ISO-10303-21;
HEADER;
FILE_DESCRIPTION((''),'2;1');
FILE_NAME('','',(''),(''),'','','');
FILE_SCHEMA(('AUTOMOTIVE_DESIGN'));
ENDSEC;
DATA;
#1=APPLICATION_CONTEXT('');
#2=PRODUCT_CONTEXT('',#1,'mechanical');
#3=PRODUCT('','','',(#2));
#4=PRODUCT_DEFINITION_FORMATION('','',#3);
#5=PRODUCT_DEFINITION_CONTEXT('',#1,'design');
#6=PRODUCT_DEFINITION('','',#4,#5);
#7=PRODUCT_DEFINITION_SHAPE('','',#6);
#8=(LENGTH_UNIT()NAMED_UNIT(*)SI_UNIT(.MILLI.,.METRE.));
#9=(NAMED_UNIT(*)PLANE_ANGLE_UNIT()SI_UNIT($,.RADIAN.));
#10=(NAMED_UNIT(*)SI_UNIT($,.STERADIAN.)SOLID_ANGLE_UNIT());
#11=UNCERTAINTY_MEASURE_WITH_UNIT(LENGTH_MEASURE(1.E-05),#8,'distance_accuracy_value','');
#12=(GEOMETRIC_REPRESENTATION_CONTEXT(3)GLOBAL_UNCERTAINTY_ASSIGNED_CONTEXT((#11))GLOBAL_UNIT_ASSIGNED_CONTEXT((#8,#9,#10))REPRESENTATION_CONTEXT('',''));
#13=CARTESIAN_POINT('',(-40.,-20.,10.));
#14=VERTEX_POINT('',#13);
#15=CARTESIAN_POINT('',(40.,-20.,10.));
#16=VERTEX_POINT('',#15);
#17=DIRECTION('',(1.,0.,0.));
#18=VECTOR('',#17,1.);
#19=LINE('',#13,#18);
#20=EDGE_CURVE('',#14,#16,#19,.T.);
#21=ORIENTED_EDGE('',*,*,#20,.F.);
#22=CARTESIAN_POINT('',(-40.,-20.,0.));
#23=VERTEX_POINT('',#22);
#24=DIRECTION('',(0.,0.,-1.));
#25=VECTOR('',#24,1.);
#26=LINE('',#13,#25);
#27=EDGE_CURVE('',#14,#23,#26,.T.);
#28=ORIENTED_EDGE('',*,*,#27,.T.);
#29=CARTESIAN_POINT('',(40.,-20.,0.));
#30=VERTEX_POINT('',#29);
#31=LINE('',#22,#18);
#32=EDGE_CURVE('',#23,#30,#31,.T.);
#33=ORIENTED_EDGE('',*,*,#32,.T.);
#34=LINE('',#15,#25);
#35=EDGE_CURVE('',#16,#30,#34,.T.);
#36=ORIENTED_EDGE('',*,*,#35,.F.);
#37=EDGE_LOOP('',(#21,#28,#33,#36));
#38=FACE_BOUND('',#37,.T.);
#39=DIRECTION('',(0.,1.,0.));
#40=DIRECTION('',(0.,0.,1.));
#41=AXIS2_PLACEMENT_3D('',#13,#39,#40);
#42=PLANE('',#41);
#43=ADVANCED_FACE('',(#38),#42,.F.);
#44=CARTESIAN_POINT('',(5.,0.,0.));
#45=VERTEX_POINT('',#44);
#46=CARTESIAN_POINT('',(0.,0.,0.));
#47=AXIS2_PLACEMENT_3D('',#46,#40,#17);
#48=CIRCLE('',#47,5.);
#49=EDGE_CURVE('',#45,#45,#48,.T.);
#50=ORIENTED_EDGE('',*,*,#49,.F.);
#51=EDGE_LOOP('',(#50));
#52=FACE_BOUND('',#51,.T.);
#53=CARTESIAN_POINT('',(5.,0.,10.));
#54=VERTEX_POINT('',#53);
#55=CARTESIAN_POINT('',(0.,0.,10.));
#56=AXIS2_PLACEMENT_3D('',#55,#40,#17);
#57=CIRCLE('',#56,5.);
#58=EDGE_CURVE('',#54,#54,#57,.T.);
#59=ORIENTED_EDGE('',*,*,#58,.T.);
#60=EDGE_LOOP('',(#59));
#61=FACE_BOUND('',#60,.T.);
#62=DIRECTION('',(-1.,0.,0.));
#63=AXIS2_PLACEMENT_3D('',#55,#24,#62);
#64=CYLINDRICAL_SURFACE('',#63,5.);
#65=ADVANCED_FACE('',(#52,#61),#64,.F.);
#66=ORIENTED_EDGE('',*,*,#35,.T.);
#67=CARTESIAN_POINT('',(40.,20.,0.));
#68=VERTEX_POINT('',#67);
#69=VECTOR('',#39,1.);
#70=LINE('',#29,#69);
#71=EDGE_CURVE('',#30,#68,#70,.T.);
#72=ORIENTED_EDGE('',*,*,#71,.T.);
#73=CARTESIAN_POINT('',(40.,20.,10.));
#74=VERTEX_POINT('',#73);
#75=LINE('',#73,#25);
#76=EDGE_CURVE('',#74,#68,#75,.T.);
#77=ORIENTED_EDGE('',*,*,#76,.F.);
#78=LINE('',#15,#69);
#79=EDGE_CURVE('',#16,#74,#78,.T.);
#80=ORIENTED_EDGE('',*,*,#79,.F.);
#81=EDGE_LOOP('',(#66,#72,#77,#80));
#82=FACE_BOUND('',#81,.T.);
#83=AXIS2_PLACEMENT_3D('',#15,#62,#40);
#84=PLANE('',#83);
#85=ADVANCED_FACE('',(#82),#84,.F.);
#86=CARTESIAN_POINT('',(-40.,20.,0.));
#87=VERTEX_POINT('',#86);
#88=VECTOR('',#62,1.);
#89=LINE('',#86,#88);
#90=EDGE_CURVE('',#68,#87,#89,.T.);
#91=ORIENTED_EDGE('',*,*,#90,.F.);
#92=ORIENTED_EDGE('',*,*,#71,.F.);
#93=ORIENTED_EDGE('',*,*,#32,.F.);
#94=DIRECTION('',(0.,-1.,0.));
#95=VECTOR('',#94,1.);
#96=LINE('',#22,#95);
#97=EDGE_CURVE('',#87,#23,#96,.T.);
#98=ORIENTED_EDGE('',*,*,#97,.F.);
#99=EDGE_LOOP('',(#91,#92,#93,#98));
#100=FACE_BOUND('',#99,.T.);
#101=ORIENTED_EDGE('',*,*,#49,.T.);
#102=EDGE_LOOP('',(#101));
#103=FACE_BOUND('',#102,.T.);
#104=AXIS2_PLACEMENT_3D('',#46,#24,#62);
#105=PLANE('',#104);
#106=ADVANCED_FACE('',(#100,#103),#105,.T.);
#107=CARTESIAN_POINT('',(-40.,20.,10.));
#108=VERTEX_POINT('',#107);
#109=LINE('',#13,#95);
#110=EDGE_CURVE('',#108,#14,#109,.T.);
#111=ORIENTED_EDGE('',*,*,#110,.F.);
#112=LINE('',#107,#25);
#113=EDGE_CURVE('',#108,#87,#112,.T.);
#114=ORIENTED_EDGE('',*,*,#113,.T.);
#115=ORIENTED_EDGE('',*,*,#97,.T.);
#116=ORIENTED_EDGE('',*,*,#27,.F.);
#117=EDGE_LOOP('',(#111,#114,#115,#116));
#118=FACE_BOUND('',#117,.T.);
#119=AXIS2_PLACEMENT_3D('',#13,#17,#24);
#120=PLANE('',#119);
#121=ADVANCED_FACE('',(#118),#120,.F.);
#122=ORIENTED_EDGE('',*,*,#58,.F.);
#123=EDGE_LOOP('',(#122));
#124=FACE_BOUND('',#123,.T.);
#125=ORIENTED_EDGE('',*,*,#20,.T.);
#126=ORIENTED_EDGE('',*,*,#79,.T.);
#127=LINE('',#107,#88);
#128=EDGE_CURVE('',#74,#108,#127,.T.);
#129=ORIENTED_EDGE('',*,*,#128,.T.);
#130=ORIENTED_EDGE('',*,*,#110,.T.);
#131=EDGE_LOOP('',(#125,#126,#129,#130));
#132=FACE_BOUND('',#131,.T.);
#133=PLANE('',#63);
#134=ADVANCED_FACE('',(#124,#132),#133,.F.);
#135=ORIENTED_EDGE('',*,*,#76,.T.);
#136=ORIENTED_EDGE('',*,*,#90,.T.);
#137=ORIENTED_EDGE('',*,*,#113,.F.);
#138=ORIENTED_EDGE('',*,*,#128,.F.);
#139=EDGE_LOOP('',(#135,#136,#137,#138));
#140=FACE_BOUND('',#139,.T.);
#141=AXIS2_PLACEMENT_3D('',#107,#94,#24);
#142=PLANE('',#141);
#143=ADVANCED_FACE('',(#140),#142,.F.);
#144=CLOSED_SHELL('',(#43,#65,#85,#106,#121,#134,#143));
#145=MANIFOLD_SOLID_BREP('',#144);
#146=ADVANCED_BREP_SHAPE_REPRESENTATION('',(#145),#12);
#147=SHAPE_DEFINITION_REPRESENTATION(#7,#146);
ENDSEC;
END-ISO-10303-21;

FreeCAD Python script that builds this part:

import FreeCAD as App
import Part
import Sketcher


def add_polygon(sketch, points):
    """Adds a closed chain of lines whose ends are joined by coincident constraints."""
    first, n = sketch.GeometryCount, len(points)
    for a, b in zip(points, points[1:] + points[:1]):
        sketch.addGeometry(Part.LineSegment(App.Vector(*a, 0), App.Vector(*b, 0)), False)
    for i in range(n):
        sketch.addConstraint(Sketcher.Constraint("Coincident", first + i, 2, first + (i + 1) % n, 1))

doc = App.newDocument("Part")
body = doc.addObject("PartDesign::Body", "Body")

sketch1 = body.newObject("Sketcher::SketchObject", "Sketch")
sketch1.AttachmentSupport = (doc.getObject("XY_Plane"), [""])
sketch1.MapMode = "FlatFace"
add_polygon(sketch1, [(-40, 20), (-40, -20), (40, -20), (40, 20)])
sketch1.addGeometry(Part.Circle(App.Vector(0, 0, 0), App.Vector(0, 0, 1), 5), False)
sketch1.addConstraint([
    Sketcher.Constraint("Vertical", 0),
    Sketcher.Constraint("Horizontal", 1),
    Sketcher.Constraint("Vertical", 2),
    Sketcher.Constraint("Horizontal", 3),
    Sketcher.Constraint("Coincident", 4, 3, -1, 1),
    Sketcher.Constraint("Symmetric", 0, 2, 2, 2, -1, 1),
    Sketcher.Constraint("Diameter", 4, 10.0),
    Sketcher.Constraint("DistanceX", 1, 1, 1, 2, 80.0),
    Sketcher.Constraint("DistanceY", 0, 2, 0, 1, 40.0),
])
pad1 = body.newObject("PartDesign::Pad", "Pad")
pad1.Profile = sketch1
pad1.Length = 10

doc.recompute()
